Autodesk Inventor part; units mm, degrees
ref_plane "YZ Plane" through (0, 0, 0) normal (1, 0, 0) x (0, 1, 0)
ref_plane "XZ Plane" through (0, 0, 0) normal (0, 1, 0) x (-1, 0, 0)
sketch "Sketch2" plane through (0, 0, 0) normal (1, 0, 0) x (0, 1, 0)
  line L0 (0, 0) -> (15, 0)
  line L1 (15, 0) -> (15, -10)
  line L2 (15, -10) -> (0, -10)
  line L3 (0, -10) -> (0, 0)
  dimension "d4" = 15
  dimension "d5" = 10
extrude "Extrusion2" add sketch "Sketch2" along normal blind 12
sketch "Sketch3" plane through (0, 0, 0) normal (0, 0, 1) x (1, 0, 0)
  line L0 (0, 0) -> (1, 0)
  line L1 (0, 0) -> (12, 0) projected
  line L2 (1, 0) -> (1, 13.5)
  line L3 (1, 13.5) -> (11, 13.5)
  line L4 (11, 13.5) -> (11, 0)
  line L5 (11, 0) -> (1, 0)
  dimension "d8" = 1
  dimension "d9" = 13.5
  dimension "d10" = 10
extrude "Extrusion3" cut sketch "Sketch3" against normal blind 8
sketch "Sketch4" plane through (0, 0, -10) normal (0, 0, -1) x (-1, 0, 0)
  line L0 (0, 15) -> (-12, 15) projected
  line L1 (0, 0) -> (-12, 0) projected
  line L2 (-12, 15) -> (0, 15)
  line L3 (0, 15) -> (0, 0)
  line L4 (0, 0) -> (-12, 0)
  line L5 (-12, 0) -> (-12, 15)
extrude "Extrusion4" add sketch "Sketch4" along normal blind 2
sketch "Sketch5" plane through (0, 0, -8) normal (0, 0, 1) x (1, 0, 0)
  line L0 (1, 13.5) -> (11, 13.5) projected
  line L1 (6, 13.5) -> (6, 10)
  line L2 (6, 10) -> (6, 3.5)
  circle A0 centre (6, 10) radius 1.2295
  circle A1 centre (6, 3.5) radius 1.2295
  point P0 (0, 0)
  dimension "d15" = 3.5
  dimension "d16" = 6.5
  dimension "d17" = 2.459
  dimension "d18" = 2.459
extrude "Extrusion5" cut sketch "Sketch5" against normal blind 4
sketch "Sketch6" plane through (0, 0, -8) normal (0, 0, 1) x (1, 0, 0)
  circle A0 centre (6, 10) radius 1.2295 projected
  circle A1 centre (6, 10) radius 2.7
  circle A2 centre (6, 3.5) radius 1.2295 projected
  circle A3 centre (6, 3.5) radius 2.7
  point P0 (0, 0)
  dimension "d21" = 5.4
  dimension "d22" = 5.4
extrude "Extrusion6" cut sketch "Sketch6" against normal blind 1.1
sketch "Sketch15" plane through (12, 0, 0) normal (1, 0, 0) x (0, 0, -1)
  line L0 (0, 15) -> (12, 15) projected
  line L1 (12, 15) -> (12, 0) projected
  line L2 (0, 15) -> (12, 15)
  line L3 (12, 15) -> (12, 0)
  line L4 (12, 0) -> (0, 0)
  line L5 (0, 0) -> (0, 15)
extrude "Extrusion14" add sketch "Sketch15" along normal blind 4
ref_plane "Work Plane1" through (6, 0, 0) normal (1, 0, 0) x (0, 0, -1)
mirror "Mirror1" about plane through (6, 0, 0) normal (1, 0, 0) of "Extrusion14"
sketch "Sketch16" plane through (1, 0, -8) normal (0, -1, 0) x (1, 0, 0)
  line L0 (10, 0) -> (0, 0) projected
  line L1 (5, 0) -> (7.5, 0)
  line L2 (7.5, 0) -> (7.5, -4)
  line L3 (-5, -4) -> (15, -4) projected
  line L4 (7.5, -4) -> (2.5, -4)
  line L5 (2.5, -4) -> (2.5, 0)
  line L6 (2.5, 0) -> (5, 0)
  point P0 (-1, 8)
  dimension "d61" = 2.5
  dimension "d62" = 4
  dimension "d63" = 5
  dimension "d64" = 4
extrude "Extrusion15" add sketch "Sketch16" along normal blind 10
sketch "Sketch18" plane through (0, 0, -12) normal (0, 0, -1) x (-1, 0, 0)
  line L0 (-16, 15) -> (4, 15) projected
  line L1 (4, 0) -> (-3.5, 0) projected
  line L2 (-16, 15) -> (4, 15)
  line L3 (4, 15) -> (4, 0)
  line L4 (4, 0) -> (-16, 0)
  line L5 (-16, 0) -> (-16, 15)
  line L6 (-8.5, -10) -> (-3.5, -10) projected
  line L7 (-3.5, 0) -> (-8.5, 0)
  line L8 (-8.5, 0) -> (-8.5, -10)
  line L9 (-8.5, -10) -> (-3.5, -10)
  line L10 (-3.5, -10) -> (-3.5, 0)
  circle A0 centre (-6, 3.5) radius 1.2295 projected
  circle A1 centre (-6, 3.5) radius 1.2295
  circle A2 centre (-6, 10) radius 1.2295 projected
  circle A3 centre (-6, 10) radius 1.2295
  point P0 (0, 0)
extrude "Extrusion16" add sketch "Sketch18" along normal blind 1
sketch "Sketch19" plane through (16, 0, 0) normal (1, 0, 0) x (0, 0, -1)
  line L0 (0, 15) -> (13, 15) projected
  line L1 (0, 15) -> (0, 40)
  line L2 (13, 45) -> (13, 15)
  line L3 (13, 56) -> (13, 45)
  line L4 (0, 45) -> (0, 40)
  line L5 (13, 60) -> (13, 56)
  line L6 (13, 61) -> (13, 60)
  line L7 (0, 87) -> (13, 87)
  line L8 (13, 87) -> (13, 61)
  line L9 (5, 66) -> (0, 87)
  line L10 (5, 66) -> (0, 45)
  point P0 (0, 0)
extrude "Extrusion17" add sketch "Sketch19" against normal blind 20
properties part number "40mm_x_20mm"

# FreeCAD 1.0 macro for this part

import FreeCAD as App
import Part
import Sketcher

V = App.Vector
Q = App.Units.Quantity

doc = App.newDocument("Part")
params = doc.addObject("Spreadsheet::Sheet", "Params")
for row, (alias, value) in enumerate([
    ("sketch1_width", "15 mm"),
    ("sketch1_height", "10 mm"),
    ("pad1_length", "12 mm"),
    ("sketch2_width", "10 mm"),
    ("sketch2_height", "13.5 mm"),
    ("pocket1_length", "8 mm"),
    ("sketch3_width", "12 mm"),
    ("sketch3_height", "15 mm"),
    ("pad2_length", "2 mm"),
    ("pocket2_length", "4 mm"),
    ("sketch5_diameter", "5.4 mm"),
    ("pocket3_length", "1.1 mm"),
    ("sketch6_width", "15 mm"),
    ("sketch6_height", "12 mm"),
    ("pad3_length", "4 mm"),
    ("sketch7_width", "5 mm"),
    ("sketch7_height", "4 mm"),
    ("pad4_length", "10 mm"),
    ("sketch8_width", "20 mm"),
    ("sketch8_width2", "5 mm"),
    ("sketch8_height", "15 mm"),
    ("sketch8_height2", "10 mm"),
    ("pad5_length", "1 mm"),
    ("sketch9_width", "30 mm"),
    ("sketch9_width2", "72 mm"),
    ("sketch9_height", "13 mm"),
    ("pad6_length", "20 mm"),
], start=1):
    params.set(f"A{row}", alias)
    params.set(f"B{row}", "=" + value)
    params.setAlias(f"B{row}", alias)

body = doc.addObject("PartDesign::Body", "Body")

sketch1 = body.newObject("Sketcher::SketchObject", "Sketch")
sketch1.AttachmentSupport = (doc.getObject("YZ_Plane"), [""])
sketch1.MapMode = "FlatFace"
sketch1.addGeometry([
    Part.LineSegment(V(15, 0, 0), V(0, 0, 0)),
    Part.LineSegment(V(0, 0, 0), V(0, -10, 0)),
    Part.LineSegment(V(0, -10, 0), V(15, -10, 0)),
    Part.LineSegment(V(15, -10, 0), V(15, 0, 0)),
], False)
sketch1.addConstraint([
    Sketcher.Constraint("Coincident", 0, 2, 1, 1),
    Sketcher.Constraint("Coincident", 1, 2, 2, 1),
    Sketcher.Constraint("Coincident", 2, 2, 3, 1),
    Sketcher.Constraint("Coincident", 3, 2, 0, 1),
    Sketcher.Constraint("Horizontal", 0),
    Sketcher.Constraint("Vertical", 1),
    Sketcher.Constraint("Horizontal", 2),
    Sketcher.Constraint("Vertical", 3),
    Sketcher.Constraint("Coincident", 0, 2, -1, 1),
    Sketcher.Constraint("DistanceX", 0, 2, 0, 1, Q("15 mm")),
    Sketcher.Constraint("DistanceY", 1, 2, 1, 1, Q("10 mm")),
])
sketch1.setExpression("Constraints[9]", "Params.sketch1_width")
sketch1.setExpression("Constraints[10]", "Params.sketch1_height")
pad1 = body.newObject("PartDesign::Pad", "Pad")
pad1.Profile = sketch1
pad1.setExpression("Length", "Params.pad1_length")

sketch2 = body.newObject("Sketcher::SketchObject", "Sketch001")
sketch2.AttachmentSupport = (doc.getObject("XY_Plane"), [""])
sketch2.MapMode = "FlatFace"
sketch2.addGeometry([
    Part.LineSegment(V(1, 14, 0), V(1, 0, 0)),
    Part.LineSegment(V(1, 0, 0), V(11, 0, 0)),
    Part.LineSegment(V(11, 0, 0), V(11, 14, 0)),
    Part.LineSegment(V(11, 14, 0), V(1, 14, 0)),
], False)
sketch2.addConstraint([
    Sketcher.Constraint("Coincident", 0, 2, 1, 1),
    Sketcher.Constraint("Coincident", 1, 2, 2, 1),
    Sketcher.Constraint("Coincident", 2, 2, 3, 1),
    Sketcher.Constraint("Coincident", 3, 2, 0, 1),
    Sketcher.Constraint("Vertical", 0),
    Sketcher.Constraint("Horizontal", 1),
    Sketcher.Constraint("Vertical", 2),
    Sketcher.Constraint("Horizontal", 3),
    Sketcher.Constraint("PointOnObject", 0, 2, -1),
    Sketcher.Constraint("DistanceX", 1, 1, 1, 2, Q("10 mm")),
    Sketcher.Constraint("DistanceY", 0, 2, 0, 1, Q("13.5 mm")),
    Sketcher.Constraint("DistanceX", -1, 1, 0, 2, Q("1 mm")),
])
sketch2.setExpression("Constraints[9]", "Params.sketch2_width")
sketch2.setExpression("Constraints[10]", "Params.sketch2_height")
pocket1 = body.newObject("PartDesign::Pocket", "Pocket")
pocket1.Profile = sketch2
pocket1.setExpression("Length", "Params.pocket1_length")

sketch3 = body.newObject("Sketcher::SketchObject", "Sketch002")
sketch3.AttachmentSupport = (doc.getObject("XY_Plane"), [""])
sketch3.MapMode = "FlatFace"
sketch3.AttachmentOffset = App.Placement(V(0, 0, -10), App.Rotation())
sketch3.addGeometry([
    Part.LineSegment(V(0, 0, 0), V(0, 15, 0)),
    Part.LineSegment(V(0, 15, 0), V(12, 15, 0)),
    Part.LineSegment(V(12, 15, 0), V(12, 0, 0)),
    Part.LineSegment(V(12, 0, 0), V(0, 0, 0)),
], False)
sketch3.addConstraint([
    Sketcher.Constraint("Coincident", 0, 2, 1, 1),
    Sketcher.Constraint("Coincident", 1, 2, 2, 1),
    Sketcher.Constraint("Coincident", 2, 2, 3, 1),
    Sketcher.Constraint("Coincident", 3, 2, 0, 1),
    Sketcher.Constraint("Vertical", 0),
    Sketcher.Constraint("Horizontal", 1),
    Sketcher.Constraint("Vertical", 2),
    Sketcher.Constraint("Horizontal", 3),
    Sketcher.Constraint("Coincident", 3, 2, -1, 1),
    Sketcher.Constraint("DistanceX", 1, 1, 1, 2, Q("12 mm")),
    Sketcher.Constraint("DistanceY", 0, 1, 0, 2, Q("15 mm")),
])
sketch3.setExpression("Constraints[9]", "Params.sketch3_width")
sketch3.setExpression("Constraints[10]", "Params.sketch3_height")
pad2 = body.newObject("PartDesign::Pad", "Pad001")
pad2.Profile = sketch3
pad2.setExpression("Length", "Params.pad2_length")
pad2.Reversed = True

sketch4 = body.newObject("Sketcher::SketchObject", "Sketch003")
sketch4.AttachmentSupport = (doc.getObject("XY_Plane"), [""])
sketch4.MapMode = "FlatFace"
sketch4.AttachmentOffset = App.Placement(V(0, 0, -8), App.Rotation())
sketch4.addGeometry([
    Part.Circle(V(6, 10, 0), V(0, 0, 1), 1.2),
    Part.Circle(V(6, 3.5, 0), V(0, 0, 1), 1.2),
], False)
sketch4.addConstraint([
    Sketcher.Constraint("Equal", 0, 1),
    Sketcher.Constraint("Vertical", 0, 3, 1, 3),
    Sketcher.Constraint("Diameter", 0, Q("2.459 mm")),
    Sketcher.Constraint("DistanceY", -1, 1, 1, 3, Q("3.5 mm")),
    Sketcher.Constraint("DistanceY", 1, 3, 0, 3, Q("6.5 mm")),
    Sketcher.Constraint("DistanceX", -1, 1, 0, 3, Q("6 mm")),
])
pocket2 = body.newObject("PartDesign::Pocket", "Pocket001")
pocket2.Profile = sketch4
pocket2.setExpression("Length", "Params.pocket2_length")

sketch5 = body.newObject("Sketcher::SketchObject", "Sketch004")
sketch5.AttachmentSupport = (doc.getObject("XY_Plane"), [""])
sketch5.MapMode = "FlatFace"
sketch5.AttachmentOffset = App.Placement(V(0, 0, -8), App.Rotation())
sketch5.addGeometry([
    Part.Circle(V(6, 10, 0), V(0, 0, 1), 2.7),
    Part.Circle(V(6, 10, 0), V(0, 0, 1), 1.2),
    Part.Circle(V(6, 3.5, 0), V(0, 0, 1), 2.7),
    Part.Circle(V(6, 3.5, 0), V(0, 0, 1), 1.2),
], False)
sketch5.addConstraint([
    Sketcher.Constraint("Coincident", 1, 3, 0, 3),
    Sketcher.Constraint("Coincident", 3, 3, 2, 3),
    Sketcher.Constraint("Equal", 0, 2),
    Sketcher.Constraint("Equal", 1, 3),
    Sketcher.Constraint("Vertical", 1, 3, 2, 3),
    Sketcher.Constraint("Diameter", 0, Q("5.4 mm")),
    Sketcher.Constraint("Diameter", 1, Q("2.459 mm")),
    Sketcher.Constraint("DistanceX", -1, 1, 0, 3, Q("6 mm")),
    Sketcher.Constraint("DistanceY", -1, 1, 0, 3, Q("10 mm")),
    Sketcher.Constraint("DistanceY", -1, 1, 2, 3, Q("3.5 mm")),
])
sketch5.setExpression("Constraints[5]", "Params.sketch5_diameter")
pocket3 = body.newObject("PartDesign::Pocket", "Pocket002")
pocket3.Profile = sketch5
pocket3.setExpression("Length", "Params.pocket3_length")

sketch6 = body.newObject("Sketcher::SketchObject", "Sketch005")
sketch6.AttachmentSupport = (doc.getObject("YZ_Plane"), [""])
sketch6.MapMode = "FlatFace"
sketch6.AttachmentOffset = App.Placement(V(0, 0, 12), App.Rotation())
sketch6.addGeometry([
    Part.LineSegment(V(15, -12, 0), V(15, 0, 0)),
    Part.LineSegment(V(15, 0, 0), V(0, 0, 0)),
    Part.LineSegment(V(0, 0, 0), V(0, -12, 0)),
    Part.LineSegment(V(0, -12, 0), V(15, -12, 0)),
], False)
sketch6.addConstraint([
    Sketcher.Constraint("Coincident", 0, 2, 1, 1),
    Sketcher.Constraint("Coincident", 1, 2, 2, 1),
    Sketcher.Constraint("Coincident", 2, 2, 3, 1),
    Sketcher.Constraint("Coincident", 3, 2, 0, 1),
    Sketcher.Constraint("Vertical", 0),
    Sketcher.Constraint("Horizontal", 1),
    Sketcher.Constraint("Vertical", 2),
    Sketcher.Constraint("Horizontal", 3),
    Sketcher.Constraint("Coincident", 1, 2, -1, 1),
    Sketcher.Constraint("DistanceX", 1, 2, 1, 1, Q("15 mm")),
    Sketcher.Constraint("DistanceY", 0, 1, 0, 2, Q("12 mm")),
])
sketch6.setExpression("Constraints[9]", "Params.sketch6_width")
sketch6.setExpression("Constraints[10]", "Params.sketch6_height")
pad3 = body.newObject("PartDesign::Pad", "Pad002")
pad3.Profile = sketch6
pad3.setExpression("Length", "Params.pad3_length")
doc.recompute()

datumplane = body.newObject("PartDesign::Plane", "DatumPlane")
datumplane.AttachmentSupport = (doc.getObject("YZ_Plane"), [""])
datumplane.MapMode = "FlatFace"
datumplane.AttachmentOffset = App.Placement(V(0, 0, 6), App.Rotation())
mirrored = body.newObject("PartDesign::Mirrored", "Mirrored")
mirrored.Originals = [pad3]
mirrored.MirrorPlane = (datumplane, [""])
body.Tip = mirrored

sketch7 = body.newObject("Sketcher::SketchObject", "Sketch006")
sketch7.AttachmentSupport = (doc.getObject("XZ_Plane"), [""])
sketch7.MapMode = "FlatFace"
sketch7.addGeometry([
    Part.LineSegment(V(8.5, -12, 0), V(8.5, -8, 0)),
    Part.LineSegment(V(8.5, -8, 0), V(3.5, -8, 0)),
    Part.LineSegment(V(3.5, -8, 0), V(3.5, -12, 0)),
    Part.LineSegment(V(3.5, -12, 0), V(8.5, -12, 0)),
], False)
sketch7.addConstraint([
    Sketcher.Constraint("Coincident", 0, 2, 1, 1),
    Sketcher.Constraint("Coincident", 1, 2, 2, 1),
    Sketcher.Constraint("Coincident", 2, 2, 3, 1),
    Sketcher.Constraint("Coincident", 3, 2, 0, 1),
    Sketcher.Constraint("Vertical", 0),
    Sketcher.Constraint("Horizontal", 1),
    Sketcher.Constraint("Vertical", 2),
    Sketcher.Constraint("Horizontal", 3),
    Sketcher.Constraint("DistanceX", 1, 2, 1, 1, Q("5 mm")),
    Sketcher.Constraint("DistanceY", 0, 1, 0, 2, Q("4 mm")),
    Sketcher.Constraint("DistanceY", 0, 2, -1, 1, Q("8 mm")),
    Sketcher.Constraint("DistanceX", -1, 1, 0, 2, Q("8.5 mm")),
])
sketch7.setExpression("Constraints[8]", "Params.sketch7_width")
sketch7.setExpression("Constraints[9]", "Params.sketch7_height")
pad4 = body.newObject("PartDesign::Pad", "Pad003")
pad4.Profile = sketch7
pad4.setExpression("Length", "Params.pad4_length")

sketch8 = body.newObject("Sketcher::SketchObject", "Sketch007")
sketch8.AttachmentSupport = (doc.getObject("XY_Plane"), [""])
sketch8.MapMode = "FlatFace"
sketch8.AttachmentOffset = App.Placement(V(0, 0, -12), App.Rotation())
sketch8.addGeometry([
    Part.LineSegment(V(-4, 15, 0), V(16, 15, 0)),
    Part.LineSegment(V(16, 15, 0), V(16, 0, 0)),
    Part.LineSegment(V(16, 0, 0), V(8.5, 0, 0)),
    Part.LineSegment(V(8.5, 0, 0), V(8.5, -10, 0)),
    Part.LineSegment(V(8.5, -10, 0), V(3.5, -10, 0)),
    Part.LineSegment(V(3.5, -10, 0), V(3.5, 0, 0)),
    Part.LineSegment(V(3.5, 0, 0), V(-4, 0, 0)),
    Part.LineSegment(V(-4, 0, 0), V(-4, 15, 0)),
    Part.Circle(V(6, 3.5, 0), V(0, 0, 1), 1.2),
    Part.Circle(V(6, 10, 0), V(0, 0, 1), 1.2),
], False)
sketch8.addConstraint([
    Sketcher.Constraint("Coincident", 0, 2, 1, 1),
    Sketcher.Constraint("Coincident", 1, 2, 2, 1),
    Sketcher.Constraint("Coincident", 2, 2, 3, 1),
    Sketcher.Constraint("Coincident", 3, 2, 4, 1),
    Sketcher.Constraint("Coincident", 4, 2, 5, 1),
    Sketcher.Constraint("Coincident", 5, 2, 6, 1),
    Sketcher.Constraint("Coincident", 6, 2, 7, 1),
    Sketcher.Constraint("Coincident", 7, 2, 0, 1),
    Sketcher.Constraint("Horizontal", 0),
    Sketcher.Constraint("Vertical", 1),
    Sketcher.Constraint("Horizontal", 2),
    Sketcher.Constraint("Vertical", 3),
    Sketcher.Constraint("Horizontal", 4),
    Sketcher.Constraint("Vertical", 5),
    Sketcher.Constraint("Horizontal", 6),
    Sketcher.Constraint("Vertical", 7),
    Sketcher.Constraint("Equal", 8, 9),
    Sketcher.Constraint("PointOnObject", 1, 2, -1),
    Sketcher.Constraint("PointOnObject", 5, 2, -1),
    Sketcher.Constraint("Vertical", 8, 3, 9, 3),
    Sketcher.Constraint("Equal", 2, 6),
    Sketcher.Constraint("DistanceX", 0, 1, 0, 2, Q("20 mm")),
    Sketcher.Constraint("DistanceX", 4, 2, 4, 1, Q("5 mm")),
    Sketcher.Constraint("DistanceY", 1, 2, 1, 1, Q("15 mm")),
    Sketcher.Constraint("DistanceY", 3, 2, 3, 1, Q("10 mm")),
    Sketcher.Constraint("Diameter", 8, Q("2.459 mm")),
    Sketcher.Constraint("DistanceX", -1, 1, 8, 3, Q("6 mm")),
    Sketcher.Constraint("DistanceY", -1, 1, 9, 3, Q("10 mm")),
    Sketcher.Constraint("DistanceX", -1, 1, 0, 2, Q("16 mm")),
    Sketcher.Constraint("DistanceY", -1, 1, 8, 3, Q("3.5 mm")),
])
sketch8.setExpression("Constraints[21]", "Params.sketch8_width")
sketch8.setExpression("Constraints[22]", "Params.sketch8_width2")
sketch8.setExpression("Constraints[23]", "Params.sketch8_height")
sketch8.setExpression("Constraints[24]", "Params.sketch8_height2")
pad5 = body.newObject("PartDesign::Pad", "Pad004")
pad5.Profile = sketch8
pad5.setExpression("Length", "Params.pad5_length")
pad5.Reversed = True

sketch9 = body.newObject("Sketcher::SketchObject", "Sketch008")
sketch9.AttachmentSupport = (doc.getObject("YZ_Plane"), [""])
sketch9.MapMode = "FlatFace"
sketch9.AttachmentOffset = App.Placement(V(0, 0, 16), App.Rotation())
sketch9.addGeometry([
    Part.LineSegment(V(45, 0, 0), V(15, 0, 0)),
    Part.LineSegment(V(15, 0, 0), V(15, -13, 0)),
    Part.LineSegment(V(15, -13, 0), V(87, -13, 0)),
    Part.LineSegment(V(87, -13, 0), V(87, 0, 0)),
    Part.LineSegment(V(87, 0, 0), V(66, -5, 0)),
    Part.LineSegment(V(66, -5, 0), V(45, 0, 0)),
], False)
sketch9.addConstraint([
    Sketcher.Constraint("Coincident", 0, 2, 1, 1),
    Sketcher.Constraint("Coincident", 1, 2, 2, 1),
    Sketcher.Constraint("Coincident", 2, 2, 3, 1),
    Sketcher.Constraint("Coincident", 3, 2, 4, 1),
    Sketcher.Constraint("Coincident", 4, 2, 5, 1),
    Sketcher.Constraint("Coincident", 5, 2, 0, 1),
    Sketcher.Constraint("Horizontal", 0),
    Sketcher.Constraint("Vertical", 1),
    Sketcher.Constraint("Horizontal", 2),
    Sketcher.Constraint("Vertical", 3),
    Sketcher.Constraint("PointOnObject", 0, 2, -1),
    Sketcher.Constraint("PointOnObject", 3, 2, -1),
    Sketcher.Constraint("Equal", 4, 5),
    Sketcher.Constraint("DistanceX", 0, 2, 0, 1, Q("30 mm")),
    Sketcher.Constraint("DistanceX", 2, 1, 2, 2, Q("72 mm")),
    Sketcher.Constraint("DistanceY", 1, 2, 1, 1, Q("13 mm")),
    Sketcher.Constraint("DistanceX", -1, 1, 0, 2, Q("15 mm")),
    Sketcher.Constraint("DistanceY", 4, 2, -1, 1, Q("5 mm")),
])
sketch9.setExpression("Constraints[13]", "Params.sketch9_width")
sketch9.setExpression("Constraints[14]", "Params.sketch9_width2")
sketch9.setExpression("Constraints[15]", "Params.sketch9_height")
pad6 = body.newObject("PartDesign::Pad", "Pad005")
pad6.Profile = sketch9
pad6.setExpression("Length", "Params.pad6_length")
pad6.Reversed = True

doc.recompute()
